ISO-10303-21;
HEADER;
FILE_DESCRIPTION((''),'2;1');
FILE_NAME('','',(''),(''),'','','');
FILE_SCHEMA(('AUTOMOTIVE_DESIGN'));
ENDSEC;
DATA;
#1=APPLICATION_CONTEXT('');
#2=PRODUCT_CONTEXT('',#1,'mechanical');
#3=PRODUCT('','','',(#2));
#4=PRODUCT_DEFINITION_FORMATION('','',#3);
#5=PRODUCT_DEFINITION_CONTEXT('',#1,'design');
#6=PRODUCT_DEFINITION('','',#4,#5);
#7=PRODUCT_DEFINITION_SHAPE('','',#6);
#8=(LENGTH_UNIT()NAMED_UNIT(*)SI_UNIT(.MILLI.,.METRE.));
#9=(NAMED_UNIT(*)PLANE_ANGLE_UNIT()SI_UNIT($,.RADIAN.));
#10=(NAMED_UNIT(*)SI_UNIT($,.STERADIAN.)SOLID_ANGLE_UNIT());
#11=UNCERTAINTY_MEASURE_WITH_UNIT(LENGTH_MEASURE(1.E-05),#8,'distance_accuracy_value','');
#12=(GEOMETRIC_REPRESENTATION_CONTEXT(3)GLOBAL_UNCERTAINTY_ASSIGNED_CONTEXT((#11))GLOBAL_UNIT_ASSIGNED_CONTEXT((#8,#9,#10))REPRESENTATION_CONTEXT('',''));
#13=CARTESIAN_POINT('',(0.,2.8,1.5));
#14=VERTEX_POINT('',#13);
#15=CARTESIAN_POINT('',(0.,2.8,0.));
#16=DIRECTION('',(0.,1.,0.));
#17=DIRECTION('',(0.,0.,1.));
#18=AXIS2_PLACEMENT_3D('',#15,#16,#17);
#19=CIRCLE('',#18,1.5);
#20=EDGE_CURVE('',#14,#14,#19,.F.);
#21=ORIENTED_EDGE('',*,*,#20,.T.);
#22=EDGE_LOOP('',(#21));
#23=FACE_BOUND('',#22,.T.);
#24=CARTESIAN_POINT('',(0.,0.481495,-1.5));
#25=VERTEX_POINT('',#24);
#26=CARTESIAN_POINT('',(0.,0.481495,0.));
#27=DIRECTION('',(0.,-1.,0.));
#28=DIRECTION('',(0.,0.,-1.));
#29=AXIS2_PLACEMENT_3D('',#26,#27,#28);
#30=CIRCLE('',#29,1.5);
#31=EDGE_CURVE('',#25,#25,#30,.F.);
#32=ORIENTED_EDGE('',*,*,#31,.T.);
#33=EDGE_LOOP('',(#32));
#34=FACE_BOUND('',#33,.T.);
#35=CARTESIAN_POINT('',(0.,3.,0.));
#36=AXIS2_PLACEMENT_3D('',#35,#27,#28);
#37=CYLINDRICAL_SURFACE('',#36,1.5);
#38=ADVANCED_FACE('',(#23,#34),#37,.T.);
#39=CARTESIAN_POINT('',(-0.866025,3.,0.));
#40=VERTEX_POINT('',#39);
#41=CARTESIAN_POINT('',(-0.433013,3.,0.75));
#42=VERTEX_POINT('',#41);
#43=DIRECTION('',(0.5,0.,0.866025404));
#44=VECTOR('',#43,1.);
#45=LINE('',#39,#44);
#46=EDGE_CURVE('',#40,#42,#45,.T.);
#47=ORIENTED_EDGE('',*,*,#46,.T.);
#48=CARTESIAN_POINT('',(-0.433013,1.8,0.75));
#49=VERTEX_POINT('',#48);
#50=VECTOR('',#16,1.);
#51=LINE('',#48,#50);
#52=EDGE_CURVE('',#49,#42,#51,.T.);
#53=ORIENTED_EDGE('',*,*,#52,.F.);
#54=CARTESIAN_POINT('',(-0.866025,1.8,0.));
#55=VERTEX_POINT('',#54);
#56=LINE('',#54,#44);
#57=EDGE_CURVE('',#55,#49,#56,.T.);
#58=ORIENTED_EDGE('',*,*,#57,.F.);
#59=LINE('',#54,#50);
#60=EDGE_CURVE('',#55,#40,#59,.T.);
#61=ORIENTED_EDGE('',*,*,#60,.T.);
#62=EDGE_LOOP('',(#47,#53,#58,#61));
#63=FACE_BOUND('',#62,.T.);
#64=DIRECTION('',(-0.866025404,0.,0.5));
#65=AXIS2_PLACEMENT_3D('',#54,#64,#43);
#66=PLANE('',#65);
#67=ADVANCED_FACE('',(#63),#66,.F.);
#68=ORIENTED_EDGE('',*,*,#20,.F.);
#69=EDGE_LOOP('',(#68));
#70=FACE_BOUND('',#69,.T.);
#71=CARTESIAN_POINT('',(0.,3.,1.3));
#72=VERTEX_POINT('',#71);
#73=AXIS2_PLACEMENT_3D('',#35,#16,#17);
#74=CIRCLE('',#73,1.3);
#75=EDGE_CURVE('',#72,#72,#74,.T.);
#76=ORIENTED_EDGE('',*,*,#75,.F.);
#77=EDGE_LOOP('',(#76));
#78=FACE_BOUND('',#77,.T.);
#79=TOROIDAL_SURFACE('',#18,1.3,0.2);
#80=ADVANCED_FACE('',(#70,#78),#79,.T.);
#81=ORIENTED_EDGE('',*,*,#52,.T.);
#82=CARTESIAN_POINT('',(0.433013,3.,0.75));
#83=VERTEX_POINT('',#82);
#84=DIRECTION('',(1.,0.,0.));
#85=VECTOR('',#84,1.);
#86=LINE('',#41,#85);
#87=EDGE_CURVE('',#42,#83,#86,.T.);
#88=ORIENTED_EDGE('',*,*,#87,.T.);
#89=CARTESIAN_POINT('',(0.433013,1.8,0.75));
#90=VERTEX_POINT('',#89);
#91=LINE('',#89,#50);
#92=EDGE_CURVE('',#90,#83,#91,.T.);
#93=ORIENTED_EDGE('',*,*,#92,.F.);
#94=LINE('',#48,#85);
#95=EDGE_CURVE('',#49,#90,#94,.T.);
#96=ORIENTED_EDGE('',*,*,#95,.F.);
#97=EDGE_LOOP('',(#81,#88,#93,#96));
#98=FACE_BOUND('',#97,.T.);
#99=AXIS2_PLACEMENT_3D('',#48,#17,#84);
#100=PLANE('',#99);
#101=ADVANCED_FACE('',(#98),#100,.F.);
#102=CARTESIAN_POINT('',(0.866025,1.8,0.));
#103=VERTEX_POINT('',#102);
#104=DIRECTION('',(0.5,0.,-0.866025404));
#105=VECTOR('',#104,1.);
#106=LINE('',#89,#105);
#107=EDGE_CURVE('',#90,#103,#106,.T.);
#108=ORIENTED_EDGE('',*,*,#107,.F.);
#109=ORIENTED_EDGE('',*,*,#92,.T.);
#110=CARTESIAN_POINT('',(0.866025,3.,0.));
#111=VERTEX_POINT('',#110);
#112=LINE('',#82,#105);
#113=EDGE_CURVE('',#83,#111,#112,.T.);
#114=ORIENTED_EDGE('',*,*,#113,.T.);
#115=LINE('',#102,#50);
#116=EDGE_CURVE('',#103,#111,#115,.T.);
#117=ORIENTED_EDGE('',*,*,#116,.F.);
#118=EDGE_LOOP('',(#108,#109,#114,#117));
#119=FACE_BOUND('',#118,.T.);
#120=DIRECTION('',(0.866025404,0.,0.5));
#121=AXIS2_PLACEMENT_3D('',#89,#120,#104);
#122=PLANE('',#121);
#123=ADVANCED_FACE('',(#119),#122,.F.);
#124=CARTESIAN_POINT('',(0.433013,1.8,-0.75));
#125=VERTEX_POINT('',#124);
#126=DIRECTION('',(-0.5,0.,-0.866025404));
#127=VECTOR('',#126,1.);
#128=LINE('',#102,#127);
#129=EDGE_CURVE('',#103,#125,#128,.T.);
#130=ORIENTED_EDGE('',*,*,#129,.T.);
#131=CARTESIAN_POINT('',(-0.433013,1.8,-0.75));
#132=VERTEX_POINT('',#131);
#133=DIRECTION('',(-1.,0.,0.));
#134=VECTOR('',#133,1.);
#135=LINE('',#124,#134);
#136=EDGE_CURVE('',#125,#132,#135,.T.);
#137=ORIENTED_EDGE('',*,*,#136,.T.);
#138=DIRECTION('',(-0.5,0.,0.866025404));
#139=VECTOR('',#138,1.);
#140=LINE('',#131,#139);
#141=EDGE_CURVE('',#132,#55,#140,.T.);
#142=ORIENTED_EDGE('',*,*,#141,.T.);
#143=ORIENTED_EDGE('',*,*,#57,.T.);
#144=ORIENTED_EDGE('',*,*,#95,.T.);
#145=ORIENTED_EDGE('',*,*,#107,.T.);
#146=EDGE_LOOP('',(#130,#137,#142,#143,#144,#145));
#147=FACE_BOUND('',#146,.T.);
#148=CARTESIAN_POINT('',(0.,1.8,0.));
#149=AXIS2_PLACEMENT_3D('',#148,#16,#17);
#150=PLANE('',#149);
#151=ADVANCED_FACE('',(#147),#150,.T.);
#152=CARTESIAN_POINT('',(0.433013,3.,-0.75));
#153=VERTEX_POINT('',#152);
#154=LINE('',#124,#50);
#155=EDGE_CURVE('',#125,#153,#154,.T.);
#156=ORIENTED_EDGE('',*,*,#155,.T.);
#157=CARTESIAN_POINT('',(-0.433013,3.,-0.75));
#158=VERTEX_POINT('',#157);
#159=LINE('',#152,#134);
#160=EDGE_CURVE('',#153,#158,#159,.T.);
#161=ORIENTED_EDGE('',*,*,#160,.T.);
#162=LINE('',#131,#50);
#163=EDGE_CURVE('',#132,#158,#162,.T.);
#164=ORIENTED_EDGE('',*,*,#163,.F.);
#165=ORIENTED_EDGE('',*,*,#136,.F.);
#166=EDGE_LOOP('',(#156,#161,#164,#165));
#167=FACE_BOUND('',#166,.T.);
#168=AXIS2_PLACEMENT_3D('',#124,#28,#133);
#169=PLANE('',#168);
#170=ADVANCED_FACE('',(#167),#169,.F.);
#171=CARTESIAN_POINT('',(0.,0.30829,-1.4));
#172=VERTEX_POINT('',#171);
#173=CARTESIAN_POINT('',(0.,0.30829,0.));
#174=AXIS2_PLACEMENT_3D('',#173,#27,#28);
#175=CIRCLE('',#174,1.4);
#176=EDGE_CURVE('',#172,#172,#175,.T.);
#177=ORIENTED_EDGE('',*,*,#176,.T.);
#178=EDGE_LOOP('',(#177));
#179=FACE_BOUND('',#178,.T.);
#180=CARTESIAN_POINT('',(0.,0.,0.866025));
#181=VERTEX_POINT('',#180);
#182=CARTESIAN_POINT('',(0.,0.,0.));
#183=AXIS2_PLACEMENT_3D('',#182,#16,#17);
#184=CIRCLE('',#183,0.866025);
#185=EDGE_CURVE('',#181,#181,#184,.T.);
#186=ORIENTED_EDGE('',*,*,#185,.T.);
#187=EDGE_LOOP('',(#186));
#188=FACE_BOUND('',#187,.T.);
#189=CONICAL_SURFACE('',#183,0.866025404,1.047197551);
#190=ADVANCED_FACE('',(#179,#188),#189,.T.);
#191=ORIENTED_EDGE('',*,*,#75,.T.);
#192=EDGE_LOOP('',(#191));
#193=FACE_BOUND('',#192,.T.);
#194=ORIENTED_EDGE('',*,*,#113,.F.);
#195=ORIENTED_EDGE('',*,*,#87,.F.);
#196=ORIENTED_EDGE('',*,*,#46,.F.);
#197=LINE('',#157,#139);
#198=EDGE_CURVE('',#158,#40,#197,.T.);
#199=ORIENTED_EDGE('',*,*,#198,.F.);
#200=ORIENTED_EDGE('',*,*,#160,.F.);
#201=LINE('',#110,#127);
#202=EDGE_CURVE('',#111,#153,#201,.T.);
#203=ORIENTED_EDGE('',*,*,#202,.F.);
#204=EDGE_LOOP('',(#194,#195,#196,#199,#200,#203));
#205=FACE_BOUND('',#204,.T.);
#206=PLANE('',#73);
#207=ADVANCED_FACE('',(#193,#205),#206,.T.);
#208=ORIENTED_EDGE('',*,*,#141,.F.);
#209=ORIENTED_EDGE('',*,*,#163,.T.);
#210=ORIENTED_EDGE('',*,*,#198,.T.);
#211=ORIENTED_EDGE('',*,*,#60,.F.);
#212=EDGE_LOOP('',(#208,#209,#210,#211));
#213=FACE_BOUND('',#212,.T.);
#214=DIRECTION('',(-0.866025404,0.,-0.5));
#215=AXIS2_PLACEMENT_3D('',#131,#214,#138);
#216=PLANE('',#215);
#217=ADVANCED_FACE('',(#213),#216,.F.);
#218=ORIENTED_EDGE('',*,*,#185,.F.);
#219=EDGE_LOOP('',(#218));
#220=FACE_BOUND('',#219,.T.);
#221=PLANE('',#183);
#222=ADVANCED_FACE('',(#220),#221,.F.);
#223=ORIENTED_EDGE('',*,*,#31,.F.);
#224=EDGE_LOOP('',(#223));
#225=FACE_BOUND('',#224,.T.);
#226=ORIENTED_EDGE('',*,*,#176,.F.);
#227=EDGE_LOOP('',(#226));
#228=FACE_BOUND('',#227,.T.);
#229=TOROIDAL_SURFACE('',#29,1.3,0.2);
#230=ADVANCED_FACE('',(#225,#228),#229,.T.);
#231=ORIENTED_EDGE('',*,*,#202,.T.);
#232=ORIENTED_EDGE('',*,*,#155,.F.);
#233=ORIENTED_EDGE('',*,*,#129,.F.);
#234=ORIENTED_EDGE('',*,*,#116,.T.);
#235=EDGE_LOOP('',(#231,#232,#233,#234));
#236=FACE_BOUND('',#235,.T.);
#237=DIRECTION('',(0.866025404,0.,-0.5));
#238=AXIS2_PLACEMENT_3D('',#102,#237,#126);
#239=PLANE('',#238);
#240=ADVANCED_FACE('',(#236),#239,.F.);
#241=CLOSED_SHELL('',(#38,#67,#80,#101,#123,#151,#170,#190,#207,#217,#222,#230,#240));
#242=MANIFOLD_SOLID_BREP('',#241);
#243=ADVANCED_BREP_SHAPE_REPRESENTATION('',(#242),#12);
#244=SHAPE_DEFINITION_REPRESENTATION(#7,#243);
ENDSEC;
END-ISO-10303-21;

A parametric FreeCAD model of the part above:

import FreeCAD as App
import Part
import Sketcher

V = App.Vector
Q = App.Units.Quantity


def edges_at(feature, points):
    """Names of the edges that pass closest to the given points."""
    edges = feature.Shape.Edges
    near = lambda p: min(range(len(edges)), key=lambda i: edges[i].distToShape(Part.Vertex(*p))[0])
    return sorted({f"Edge{near(p) + 1}" for p in points})

doc = App.newDocument("Part")
body = doc.addObject("PartDesign::Body", "Body")

sketch1 = doc.addObject("Sketcher::SketchObject", "Sketch")
body.addObject(sketch1)
sketch1.AttachmentSupport = (doc.XZ_Plane, [""])
sketch1.MapMode = "FlatFace"
sketch1.addGeometry(Part.Circle(V(0, 0, 0), V(0, 0, 1), 1.5), False)
sketch1.addConstraint([
    Sketcher.Constraint("Coincident", 0, 3, -1, 1),
    Sketcher.Constraint("Diameter", 0, Q("3 mm")),
])
pad1 = doc.addObject("PartDesign::Pad", "Pad")
body.addObject(pad1)
pad1.Profile = sketch1
pad1.Length = 3
pad1.Reversed = True

sketch2 = doc.addObject("Sketcher::SketchObject", "Sketch001")
body.addObject(sketch2)
sketch2.AttachmentSupport = (doc.XZ_Plane, [""])
sketch2.MapMode = "FlatFace"
sketch2.AttachmentOffset = App.Placement(V(0, 0, -3), App.Rotation())
sketch2.addGeometry([
    Part.LineSegment(V(0.9, 0, 0), V(0.4, -0.8, 0)),
    Part.LineSegment(V(0.4, -0.8, 0), V(-0.4, -0.8, 0)),
    Part.LineSegment(V(-0.4, -0.8, 0), V(-0.9, 0, 0)),
    Part.LineSegment(V(-0.9, 0, 0), V(-0.4, 0.8, 0)),
    Part.LineSegment(V(-0.4, 0.8, 0), V(0.4, 0.8, 0)),
    Part.LineSegment(V(0.4, 0.8, 0), V(0.9, 0, 0)),
], False)
sketch2.addConstraint([
    Sketcher.Constraint("Coincident", 0, 2, 1, 1),
    Sketcher.Constraint("Coincident", 1, 2, 2, 1),
    Sketcher.Constraint("Coincident", 2, 2, 3, 1),
    Sketcher.Constraint("Coincident", 3, 2, 4, 1),
    Sketcher.Constraint("Coincident", 4, 2, 5, 1),
    Sketcher.Constraint("Coincident", 5, 2, 0, 1),
    Sketcher.Constraint("Horizontal", 1),
    Sketcher.Constraint("Horizontal", 4),
    Sketcher.Constraint("Symmetric", 0, 2, 3, 2, -1, 1),
    Sketcher.Constraint("Symmetric", 2, 2, 5, 2, -1, 1),
    Sketcher.Constraint("PointOnObject", 2, 2, -1),
    Sketcher.Constraint("Parallel", 2, 5),
    Sketcher.Constraint("Vertical", 1, 2, 3, 2),
    Sketcher.Constraint("Angle", 0, Q("-120 deg")),
    Sketcher.Constraint("DistanceY", 1, 2, 3, 2, Q("1.5 mm")),
    Sketcher.Constraint("DistanceX", 1, 2, 1, 1, Q("0.866025 mm")),
])
pocket1 = doc.addObject("PartDesign::Pocket", "Pocket")
body.addObject(pocket1)
pocket1.Profile = sketch2
pocket1.Length = 1.2
pocket1.Reversed = True

sketch3 = doc.addObject("Sketcher::SketchObject", "Sketch002")
body.addObject(sketch3)
sketch3.AttachmentSupport = (doc.XY_Plane, [""])
sketch3.MapMode = "FlatFace"
sketch3.addGeometry([
    Part.LineSegment(V(1.5, 0.37, 0), V(0.87, 0, 0)),
    Part.LineSegment(V(0.87, 0, 0), V(1.5, 0, 0)),
    Part.LineSegment(V(1.5, 0, 0), V(1.5, 0.37, 0)),
], False)
sketch3.addConstraint([
    Sketcher.Constraint("Coincident", 0, 2, 1, 1),
    Sketcher.Constraint("Coincident", 1, 2, 2, 1),
    Sketcher.Constraint("Coincident", 2, 2, 0, 1),
    Sketcher.Constraint("Horizontal", 1),
    Sketcher.Constraint("Vertical", 2),
    Sketcher.Constraint("PointOnObject", 0, 2, -1),
    Sketcher.Constraint("Angle", 0, Q("-150 deg")),
    Sketcher.Constraint("DistanceX", -1, 1, 1, 2, Q("1.5 mm")),
    Sketcher.Constraint("Distance", 0, Q("0.732051 mm")),
])
groove = doc.addObject("PartDesign::Groove", "Groove")
body.addObject(groove)
groove.Profile = sketch3
groove.ReferenceAxis = (sketch3, ["V_Axis"])
groove.Angle = 360
doc.recompute()

fillet = doc.addObject("PartDesign::Fillet", "Fillet")
body.addObject(fillet)
fillet.Base = (groove, edges_at(groove, [(-1.5, 0.366, 0), (-1.5, 3, 0)]))
fillet.Radius = 0.2

doc.recompute()
